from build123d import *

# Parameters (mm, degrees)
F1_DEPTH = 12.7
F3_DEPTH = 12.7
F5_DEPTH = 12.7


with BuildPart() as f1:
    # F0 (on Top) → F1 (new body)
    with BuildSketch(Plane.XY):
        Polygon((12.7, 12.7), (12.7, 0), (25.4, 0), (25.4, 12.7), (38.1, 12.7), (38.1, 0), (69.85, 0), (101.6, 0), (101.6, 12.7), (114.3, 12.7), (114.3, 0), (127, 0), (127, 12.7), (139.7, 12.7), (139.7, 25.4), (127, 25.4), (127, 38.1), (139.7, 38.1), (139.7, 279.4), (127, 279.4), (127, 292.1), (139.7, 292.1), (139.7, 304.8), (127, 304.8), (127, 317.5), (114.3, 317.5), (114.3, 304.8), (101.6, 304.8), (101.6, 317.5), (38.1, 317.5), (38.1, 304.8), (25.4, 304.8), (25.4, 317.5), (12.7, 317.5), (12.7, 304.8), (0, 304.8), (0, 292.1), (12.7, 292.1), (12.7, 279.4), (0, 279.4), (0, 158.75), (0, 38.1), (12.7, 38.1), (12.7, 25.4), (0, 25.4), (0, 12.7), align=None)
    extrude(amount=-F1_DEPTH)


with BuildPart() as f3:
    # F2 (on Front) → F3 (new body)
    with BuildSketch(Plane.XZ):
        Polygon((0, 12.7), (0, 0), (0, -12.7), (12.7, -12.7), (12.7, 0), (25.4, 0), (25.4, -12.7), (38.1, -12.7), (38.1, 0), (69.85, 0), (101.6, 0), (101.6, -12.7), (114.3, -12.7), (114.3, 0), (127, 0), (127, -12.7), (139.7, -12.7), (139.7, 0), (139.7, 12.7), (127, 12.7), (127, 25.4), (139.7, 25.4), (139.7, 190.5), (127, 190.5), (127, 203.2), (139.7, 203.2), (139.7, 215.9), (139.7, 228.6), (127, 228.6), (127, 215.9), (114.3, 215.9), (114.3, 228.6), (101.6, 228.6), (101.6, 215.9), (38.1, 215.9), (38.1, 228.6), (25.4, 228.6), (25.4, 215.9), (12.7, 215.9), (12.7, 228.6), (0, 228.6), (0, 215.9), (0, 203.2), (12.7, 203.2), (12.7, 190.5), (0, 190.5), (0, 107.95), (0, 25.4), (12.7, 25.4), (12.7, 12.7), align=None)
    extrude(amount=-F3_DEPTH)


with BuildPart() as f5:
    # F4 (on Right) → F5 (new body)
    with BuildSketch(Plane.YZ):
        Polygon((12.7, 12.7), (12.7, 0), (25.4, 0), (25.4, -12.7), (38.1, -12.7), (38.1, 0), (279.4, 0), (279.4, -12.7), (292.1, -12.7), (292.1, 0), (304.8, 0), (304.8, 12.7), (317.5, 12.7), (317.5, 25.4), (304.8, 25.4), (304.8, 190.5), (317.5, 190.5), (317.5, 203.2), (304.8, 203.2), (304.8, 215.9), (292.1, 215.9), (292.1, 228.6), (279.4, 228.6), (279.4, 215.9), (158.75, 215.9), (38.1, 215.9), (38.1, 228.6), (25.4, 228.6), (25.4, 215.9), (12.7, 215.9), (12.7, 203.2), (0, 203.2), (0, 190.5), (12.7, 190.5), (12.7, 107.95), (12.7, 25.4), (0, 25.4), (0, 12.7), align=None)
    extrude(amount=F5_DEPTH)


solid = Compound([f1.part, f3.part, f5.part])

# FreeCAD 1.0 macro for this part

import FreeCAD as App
import Part
import Sketcher
from FreeCAD import Vector
Q = App.Units.Quantity

doc = App.newDocument("Part")
body = doc.addObject("PartDesign::Body", "Body")

# Sketch on XY plane
sketch1 = doc.addObject("Sketcher::SketchObject", "Sketch")
body.addObject(sketch1)
sketch1.AttachmentSupport = (doc.XY_Plane, [""])
sketch1.MapMode = "FlatFace"
sketch1.addGeometry(Part.LineSegment(Vector(13, 13, 0), Vector(13, 0, 0)), False)
sketch1.addGeometry(Part.LineSegment(Vector(13, 0, 0), Vector(25, 0, 0)), False)
sketch1.addGeometry(Part.LineSegment(Vector(25, 0, 0), Vector(25, 13, 0)), False)
sketch1.addGeometry(Part.LineSegment(Vector(25, 13, 0), Vector(38, 13, 0)), False)
sketch1.addGeometry(Part.LineSegment(Vector(38, 13, 0), Vector(38, 0, 0)), False)
sketch1.addGeometry(Part.LineSegment(Vector(38, 0, 0), Vector(102, 0, 0)), False)
sketch1.addGeometry(Part.LineSegment(Vector(102, 0, 0), Vector(102, 13, 0)), False)
sketch1.addGeometry(Part.LineSegment(Vector(102, 13, 0), Vector(114, 13, 0)), False)
sketch1.addGeometry(Part.LineSegment(Vector(114, 13, 0), Vector(114, 0, 0)), False)
sketch1.addGeometry(Part.LineSegment(Vector(114, 0, 0), Vector(127, 0, 0)), False)
sketch1.addGeometry(Part.LineSegment(Vector(127, 0, 0), Vector(127, 13, 0)), False)
sketch1.addGeometry(Part.LineSegment(Vector(127, 13, 0), Vector(140, 13, 0)), False)
sketch1.addGeometry(Part.LineSegment(Vector(140, 13, 0), Vector(140, 25, 0)), False)
sketch1.addGeometry(Part.LineSegment(Vector(140, 25, 0), Vector(127, 25, 0)), False)
sketch1.addGeometry(Part.LineSegment(Vector(127, 25, 0), Vector(127, 38, 0)), False)
sketch1.addGeometry(Part.LineSegment(Vector(127, 38, 0), Vector(140, 38, 0)), False)
sketch1.addGeometry(Part.LineSegment(Vector(140, 38, 0), Vector(140, 279, 0)), False)
sketch1.addGeometry(Part.LineSegment(Vector(140, 279, 0), Vector(127, 279, 0)), False)
sketch1.addGeometry(Part.LineSegment(Vector(127, 279, 0), Vector(127, 292, 0)), False)
sketch1.addGeometry(Part.LineSegment(Vector(127, 292, 0), Vector(140, 292, 0)), False)
sketch1.addGeometry(Part.LineSegment(Vector(140, 292, 0), Vector(140, 305, 0)), False)
sketch1.addGeometry(Part.LineSegment(Vector(140, 305, 0), Vector(127, 305, 0)), False)
sketch1.addGeometry(Part.LineSegment(Vector(127, 305, 0), Vector(127, 318, 0)), False)
sketch1.addGeometry(Part.LineSegment(Vector(127, 318, 0), Vector(114, 318, 0)), False)
sketch1.addGeometry(Part.LineSegment(Vector(114, 318, 0), Vector(114, 305, 0)), False)
sketch1.addGeometry(Part.LineSegment(Vector(114, 305, 0), Vector(102, 305, 0)), False)
sketch1.addGeometry(Part.LineSegment(Vector(102, 305, 0), Vector(102, 318, 0)), False)
sketch1.addGeometry(Part.LineSegment(Vector(102, 318, 0), Vector(38, 318, 0)), False)
sketch1.addGeometry(Part.LineSegment(Vector(38, 318, 0), Vector(38, 305, 0)), False)
sketch1.addGeometry(Part.LineSegment(Vector(38, 305, 0), Vector(25, 305, 0)), False)
sketch1.addGeometry(Part.LineSegment(Vector(25, 305, 0), Vector(25, 318, 0)), False)
sketch1.addGeometry(Part.LineSegment(Vector(25, 318, 0), Vector(13, 318, 0)), False)
sketch1.addGeometry(Part.LineSegment(Vector(13, 318, 0), Vector(13, 305, 0)), False)
sketch1.addGeometry(Part.LineSegment(Vector(13, 305, 0), Vector(0, 305, 0)), False)
sketch1.addGeometry(Part.LineSegment(Vector(0, 305, 0), Vector(0, 292, 0)), False)
sketch1.addGeometry(Part.LineSegment(Vector(0, 292, 0), Vector(13, 292, 0)), False)
sketch1.addGeometry(Part.LineSegment(Vector(13, 292, 0), Vector(13, 279, 0)), False)
sketch1.addGeometry(Part.LineSegment(Vector(13, 279, 0), Vector(0, 279, 0)), False)
sketch1.addGeometry(Part.LineSegment(Vector(0, 279, 0), Vector(0, 38, 0)), False)
sketch1.addGeometry(Part.LineSegment(Vector(0, 38, 0), Vector(13, 38, 0)), False)
sketch1.addGeometry(Part.LineSegment(Vector(13, 38, 0), Vector(13, 25, 0)), False)
sketch1.addGeometry(Part.LineSegment(Vector(13, 25, 0), Vector(0, 25, 0)), False)
sketch1.addGeometry(Part.LineSegment(Vector(0, 25, 0), Vector(0, 13, 0)), False)
sketch1.addGeometry(Part.LineSegment(Vector(0, 13, 0), Vector(13, 13, 0)), False)
sketch1.addConstraint(Sketcher.Constraint("Coincident", 0, 2, 1, 1))
sketch1.addConstraint(Sketcher.Constraint("Coincident", 1, 2, 2, 1))
sketch1.addConstraint(Sketcher.Constraint("Coincident", 2, 2, 3, 1))
sketch1.addConstraint(Sketcher.Constraint("Coincident", 3, 2, 4, 1))
sketch1.addConstraint(Sketcher.Constraint("Coincident", 4, 2, 5, 1))
sketch1.addConstraint(Sketcher.Constraint("Coincident", 5, 2, 6, 1))
sketch1.addConstraint(Sketcher.Constraint("Coincident", 6, 2, 7, 1))
sketch1.addConstraint(Sketcher.Constraint("Coincident", 7, 2, 8, 1))
sketch1.addConstraint(Sketcher.Constraint("Coincident", 8, 2, 9, 1))
sketch1.addConstraint(Sketcher.Constraint("Coincident", 9, 2, 10, 1))
sketch1.addConstraint(Sketcher.Constraint("Coincident", 10, 2, 11, 1))
sketch1.addConstraint(Sketcher.Constraint("Coincident", 11, 2, 12, 1))
sketch1.addConstraint(Sketcher.Constraint("Coincident", 12, 2, 13, 1))
sketch1.addConstraint(Sketcher.Constraint("Coincident", 13, 2, 14, 1))
sketch1.addConstraint(Sketcher.Constraint("Coincident", 14, 2, 15, 1))
sketch1.addConstraint(Sketcher.Constraint("Coincident", 15, 2, 16, 1))
sketch1.addConstraint(Sketcher.Constraint("Coincident", 16, 2, 17, 1))
sketch1.addConstraint(Sketcher.Constraint("Coincident", 17, 2, 18, 1))
sketch1.addConstraint(Sketcher.Constraint("Coincident", 18, 2, 19, 1))
sketch1.addConstraint(Sketcher.Constraint("Coincident", 19, 2, 20, 1))
sketch1.addConstraint(Sketcher.Constraint("Coincident", 20, 2, 21, 1))
sketch1.addConstraint(Sketcher.Constraint("Coincident", 21, 2, 22, 1))
sketch1.addConstraint(Sketcher.Constraint("Coincident", 22, 2, 23, 1))
sketch1.addConstraint(Sketcher.Constraint("Coincident", 23, 2, 24, 1))
sketch1.addConstraint(Sketcher.Constraint("Coincident", 24, 2, 25, 1))
sketch1.addConstraint(Sketcher.Constraint("Coincident", 25, 2, 26, 1))
sketch1.addConstraint(Sketcher.Constraint("Coincident", 26, 2, 27, 1))
sketch1.addConstraint(Sketcher.Constraint("Coincident", 27, 2, 28, 1))
sketch1.addConstraint(Sketcher.Constraint("Coincident", 28, 2, 29, 1))
sketch1.addConstraint(Sketcher.Constraint("Coincident", 29, 2, 30, 1))
sketch1.addConstraint(Sketcher.Constraint("Coincident", 30, 2, 31, 1))
sketch1.addConstraint(Sketcher.Constraint("Coincident", 31, 2, 32, 1))
sketch1.addConstraint(Sketcher.Constraint("Coincident", 32, 2, 33, 1))
sketch1.addConstraint(Sketcher.Constraint("Coincident", 33, 2, 34, 1))
sketch1.addConstraint(Sketcher.Constraint("Coincident", 34, 2, 35, 1))
sketch1.addConstraint(Sketcher.Constraint("Coincident", 35, 2, 36, 1))
sketch1.addConstraint(Sketcher.Constraint("Coincident", 36, 2, 37, 1))
sketch1.addConstraint(Sketcher.Constraint("Coincident", 37, 2, 38, 1))
sketch1.addConstraint(Sketcher.Constraint("Coincident", 38, 2, 39, 1))
sketch1.addConstraint(Sketcher.Constraint("Coincident", 39, 2, 40, 1))
sketch1.addConstraint(Sketcher.Constraint("Coincident", 40, 2, 41, 1))
sketch1.addConstraint(Sketcher.Constraint("Coincident", 41, 2, 42, 1))
sketch1.addConstraint(Sketcher.Constraint("Coincident", 42, 2, 43, 1))
sketch1.addConstraint(Sketcher.Constraint("Coincident", 43, 2, 0, 1))
sketch1.addConstraint(Sketcher.Constraint("Vertical", 0))
sketch1.addConstraint(Sketcher.Constraint("Horizontal", 1))
sketch1.addConstraint(Sketcher.Constraint("Vertical", 2))
sketch1.addConstraint(Sketcher.Constraint("Horizontal", 3))
sketch1.addConstraint(Sketcher.Constraint("Vertical", 4))
sketch1.addConstraint(Sketcher.Constraint("Horizontal", 5))
sketch1.addConstraint(Sketcher.Constraint("Vertical", 6))
sketch1.addConstraint(Sketcher.Constraint("Horizontal", 7))
sketch1.addConstraint(Sketcher.Constraint("Vertical", 8))
sketch1.addConstraint(Sketcher.Constraint("Horizontal", 9))
sketch1.addConstraint(Sketcher.Constraint("Vertical", 10))
sketch1.addConstraint(Sketcher.Constraint("Horizontal", 11))
sketch1.addConstraint(Sketcher.Constraint("Vertical", 12))
sketch1.addConstraint(Sketcher.Constraint("Horizontal", 13))
sketch1.addConstraint(Sketcher.Constraint("Vertical", 14))
sketch1.addConstraint(Sketcher.Constraint("Horizontal", 15))
sketch1.addConstraint(Sketcher.Constraint("Vertical", 16))
sketch1.addConstraint(Sketcher.Constraint("Horizontal", 17))
sketch1.addConstraint(Sketcher.Constraint("Vertical", 18))
sketch1.addConstraint(Sketcher.Constraint("Horizontal", 19))
sketch1.addConstraint(Sketcher.Constraint("Vertical", 20))
sketch1.addConstraint(Sketcher.Constraint("Horizontal", 21))
sketch1.addConstraint(Sketcher.Constraint("Vertical", 22))
sketch1.addConstraint(Sketcher.Constraint("Horizontal", 23))
sketch1.addConstraint(Sketcher.Constraint("Vertical", 24))
sketch1.addConstraint(Sketcher.Constraint("Horizontal", 25))
sketch1.addConstraint(Sketcher.Constraint("Vertical", 26))
sketch1.addConstraint(Sketcher.Constraint("Horizontal", 27))
sketch1.addConstraint(Sketcher.Constraint("Vertical", 28))
sketch1.addConstraint(Sketcher.Constraint("Horizontal", 29))
sketch1.addConstraint(Sketcher.Constraint("Vertical", 30))
sketch1.addConstraint(Sketcher.Constraint("Horizontal", 31))
sketch1.addConstraint(Sketcher.Constraint("Vertical", 32))
sketch1.addConstraint(Sketcher.Constraint("Horizontal", 33))
sketch1.addConstraint(Sketcher.Constraint("Vertical", 34))
sketch1.addConstraint(Sketcher.Constraint("Horizontal", 35))
sketch1.addConstraint(Sketcher.Constraint("Vertical", 36))
sketch1.addConstraint(Sketcher.Constraint("Horizontal", 37))
sketch1.addConstraint(Sketcher.Constraint("Vertical", 38))
sketch1.addConstraint(Sketcher.Constraint("Horizontal", 39))
sketch1.addConstraint(Sketcher.Constraint("Vertical", 40))
sketch1.addConstraint(Sketcher.Constraint("Horizontal", 41))
sketch1.addConstraint(Sketcher.Constraint("Vertical", 42))
sketch1.addConstraint(Sketcher.Constraint("Horizontal", 43))
sketch1.addConstraint(Sketcher.Constraint("PointOnObject", 0, 2, -1))
sketch1.addConstraint(Sketcher.Constraint("PointOnObject", 4, 2, -1))
sketch1.addConstraint(Sketcher.Constraint("PointOnObject", 8, 2, -1))
sketch1.addConstraint(Sketcher.Constraint("PointOnObject", 33, 2, -2))
sketch1.addConstraint(Sketcher.Constraint("PointOnObject", 37, 2, -2))
sketch1.addConstraint(Sketcher.Constraint("PointOnObject", 41, 2, -2))
sketch1.addConstraint(Sketcher.Constraint("Horizontal", 3, 2, 6, 2))
sketch1.addConstraint(Sketcher.Constraint("Horizontal", 7, 2, 10, 2))
sketch1.addConstraint(Sketcher.Constraint("Horizontal", 21, 2, 24, 2))
sketch1.addConstraint(Sketcher.Constraint("Horizontal", 23, 2, 26, 2))
sketch1.addConstraint(Sketcher.Constraint("Horizontal", 25, 2, 28, 2))
sketch1.addConstraint(Sketcher.Constraint("Horizontal", 27, 2, 30, 2))
sketch1.addConstraint(Sketcher.Constraint("Horizontal", 29, 2, 32, 2))
sketch1.addConstraint(Sketcher.Constraint("Horizontal", 19, 2, 34, 2))
sketch1.addConstraint(Sketcher.Constraint("Horizontal", 17, 2, 36, 2))
sketch1.addConstraint(Sketcher.Constraint("Horizontal", 15, 2, 38, 2))
sketch1.addConstraint(Sketcher.Constraint("Horizontal", 13, 2, 40, 2))
sketch1.addConstraint(Sketcher.Constraint("Horizontal", 11, 2, 42, 2))
sketch1.addConstraint(Sketcher.Constraint("Vertical", 10, 2, 13, 2))
sketch1.addConstraint(Sketcher.Constraint("Vertical", 12, 2, 15, 2))
sketch1.addConstraint(Sketcher.Constraint("Vertical", 14, 2, 17, 2))
sketch1.addConstraint(Sketcher.Constraint("Vertical", 16, 2, 19, 2))
sketch1.addConstraint(Sketcher.Constraint("Vertical", 18, 2, 21, 2))
sketch1.addConstraint(Sketcher.Constraint("Vertical", 8, 2, 23, 2))
sketch1.addConstraint(Sketcher.Constraint("Vertical", 6, 2, 25, 2))
sketch1.addConstraint(Sketcher.Constraint("Vertical", 4, 2, 27, 2))
sketch1.addConstraint(Sketcher.Constraint("Vertical", 2, 2, 29, 2))
sketch1.addConstraint(Sketcher.Constraint("Vertical", 0, 2, 31, 2))
sketch1.addConstraint(Sketcher.Constraint("Vertical", 32, 2, 35, 2))
sketch1.addConstraint(Sketcher.Constraint("Vertical", 36, 2, 39, 2))
sketch1.addConstraint(Sketcher.Constraint("Equal", 1, 3))
sketch1.addConstraint(Sketcher.Constraint("Equal", 3, 7))
sketch1.addConstraint(Sketcher.Constraint("Equal", 7, 9))
sketch1.addConstraint(Sketcher.Constraint("Equal", 9, 11))
sketch1.addConstraint(Sketcher.Constraint("Equal", 31, 33))
sketch1.addConstraint(Sketcher.Constraint("Equal", 43, 0))
sketch1.addConstraint(Sketcher.Constraint("Equal", 10, 12))
sketch1.addConstraint(Sketcher.Constraint("Equal", 12, 14))
sketch1.addConstraint(Sketcher.Constraint("Equal", 14, 18))
sketch1.addConstraint(Sketcher.Constraint("Equal", 18, 20))
sketch1.addConstraint(Sketcher.Constraint("Equal", 20, 22))
sketch1.addConstraint(Sketcher.Constraint("DistanceX", 1, 1, 1, 2, Q("0.5 in")))
sketch1.addConstraint(Sketcher.Constraint("DistanceX", 5, 1, 5, 2, Q("2.5 in")))
sketch1.addConstraint(Sketcher.Constraint("DistanceY", 16, 1, 16, 2, Q("9.5 in")))
pad1 = doc.addObject("PartDesign::Pad", "Pad")
body.addObject(pad1)
pad1.Profile = sketch1
pad1.Length = Q("0.5 in")
pad1.Reversed = True
body2 = doc.addObject("PartDesign::Body", "Body001")

# Sketch on XZ plane
sketch2 = doc.addObject("Sketcher::SketchObject", "Sketch001")
body2.addObject(sketch2)
sketch2.AttachmentSupport = (doc.getObject("XZ_Plane001"), [""])
sketch2.MapMode = "FlatFace"
sketch2.addGeometry(Part.LineSegment(Vector(0, 13, 0), Vector(0, -13, 0)), False)
sketch2.addGeometry(Part.LineSegment(Vector(0, -13, 0), Vector(13, -13, 0)), False)
sketch2.addGeometry(Part.LineSegment(Vector(13, -13, 0), Vector(13, 0, 0)), False)
sketch2.addGeometry(Part.LineSegment(Vector(13, 0, 0), Vector(25, 0, 0)), False)
sketch2.addGeometry(Part.LineSegment(Vector(25, 0, 0), Vector(25, -13, 0)), False)
sketch2.addGeometry(Part.LineSegment(Vector(25, -13, 0), Vector(38, -13, 0)), False)
sketch2.addGeometry(Part.LineSegment(Vector(38, -13, 0), Vector(38, 0, 0)), False)
sketch2.addGeometry(Part.LineSegment(Vector(38, 0, 0), Vector(102, 0, 0)), False)
sketch2.addGeometry(Part.LineSegment(Vector(102, 0, 0), Vector(102, -13, 0)), False)
sketch2.addGeometry(Part.LineSegment(Vector(102, -13, 0), Vector(114, -13, 0)), False)
sketch2.addGeometry(Part.LineSegment(Vector(114, -13, 0), Vector(114, 0, 0)), False)
sketch2.addGeometry(Part.LineSegment(Vector(114, 0, 0), Vector(127, 0, 0)), False)
sketch2.addGeometry(Part.LineSegment(Vector(127, 0, 0), Vector(127, -13, 0)), False)
sketch2.addGeometry(Part.LineSegment(Vector(127, -13, 0), Vector(140, -13, 0)), False)
sketch2.addGeometry(Part.LineSegment(Vector(140, -13, 0), Vector(140, 13, 0)), False)
sketch2.addGeometry(Part.LineSegment(Vector(140, 13, 0), Vector(127, 13, 0)), False)
sketch2.addGeometry(Part.LineSegment(Vector(127, 13, 0), Vector(127, 25, 0)), False)
sketch2.addGeometry(Part.LineSegment(Vector(127, 25, 0), Vector(140, 25, 0)), False)
sketch2.addGeometry(Part.LineSegment(Vector(140, 25, 0), Vector(140, 190, 0)), False)
sketch2.addGeometry(Part.LineSegment(Vector(140, 190, 0), Vector(127, 190, 0)), False)
sketch2.addGeometry(Part.LineSegment(Vector(127, 190, 0), Vector(127, 203, 0)), False)
sketch2.addGeometry(Part.LineSegment(Vector(127, 203, 0), Vector(140, 203, 0)), False)
sketch2.addGeometry(Part.LineSegment(Vector(140, 203, 0), Vector(140, 229, 0)), False)
sketch2.addGeometry(Part.LineSegment(Vector(140, 229, 0), Vector(127, 229, 0)), False)
sketch2.addGeometry(Part.LineSegment(Vector(127, 229, 0), Vector(127, 216, 0)), False)
sketch2.addGeometry(Part.LineSegment(Vector(127, 216, 0), Vector(114, 216, 0)), False)
sketch2.addGeometry(Part.LineSegment(Vector(114, 216, 0), Vector(114, 229, 0)), False)
sketch2.addGeometry(Part.LineSegment(Vector(114, 229, 0), Vector(102, 229, 0)), False)
sketch2.addGeometry(Part.LineSegment(Vector(102, 229, 0), Vector(102, 216, 0)), False)
sketch2.addGeometry(Part.LineSegment(Vector(102, 216, 0), Vector(38, 216, 0)), False)
sketch2.addGeometry(Part.LineSegment(Vector(38, 216, 0), Vector(38, 229, 0)), False)
sketch2.addGeometry(Part.LineSegment(Vector(38, 229, 0), Vector(25, 229, 0)), False)
sketch2.addGeometry(Part.LineSegment(Vector(25, 229, 0), Vector(25, 216, 0)), False)
sketch2.addGeometry(Part.LineSegment(Vector(25, 216, 0), Vector(13, 216, 0)), False)
sketch2.addGeometry(Part.LineSegment(Vector(13, 216, 0), Vector(13, 229, 0)), False)
sketch2.addGeometry(Part.LineSegment(Vector(13, 229, 0), Vector(0, 229, 0)), False)
sketch2.addGeometry(Part.LineSegment(Vector(0, 229, 0), Vector(0, 203, 0)), False)
sketch2.addGeometry(Part.LineSegment(Vector(0, 203, 0), Vector(13, 203, 0)), False)
sketch2.addGeometry(Part.LineSegment(Vector(13, 203, 0), Vector(13, 190, 0)), False)
sketch2.addGeometry(Part.LineSegment(Vector(13, 190, 0), Vector(0, 190, 0)), False)
sketch2.addGeometry(Part.LineSegment(Vector(0, 190, 0), Vector(0, 25, 0)), False)
sketch2.addGeometry(Part.LineSegment(Vector(0, 25, 0), Vector(13, 25, 0)), False)
sketch2.addGeometry(Part.LineSegment(Vector(13, 25, 0), Vector(13, 13, 0)), False)
sketch2.addGeometry(Part.LineSegment(Vector(13, 13, 0), Vector(0, 13, 0)), False)
sketch2.addConstraint(Sketcher.Constraint("Coincident", 0, 2, 1, 1))
sketch2.addConstraint(Sketcher.Constraint("Coincident", 1, 2, 2, 1))
sketch2.addConstraint(Sketcher.Constraint("Coincident", 2, 2, 3, 1))
sketch2.addConstraint(Sketcher.Constraint("Coincident", 3, 2, 4, 1))
sketch2.addConstraint(Sketcher.Constraint("Coincident", 4, 2, 5, 1))
sketch2.addConstraint(Sketcher.Constraint("Coincident", 5, 2, 6, 1))
sketch2.addConstraint(Sketcher.Constraint("Coincident", 6, 2, 7, 1))
sketch2.addConstraint(Sketcher.Constraint("Coincident", 7, 2, 8, 1))
sketch2.addConstraint(Sketcher.Constraint("Coincident", 8, 2, 9, 1))
sketch2.addConstraint(Sketcher.Constraint("Coincident", 9, 2, 10, 1))
sketch2.addConstraint(Sketcher.Constraint("Coincident", 10, 2, 11, 1))
sketch2.addConstraint(Sketcher.Constraint("Coincident", 11, 2, 12, 1))
sketch2.addConstraint(Sketcher.Constraint("Coincident", 12, 2, 13, 1))
sketch2.addConstraint(Sketcher.Constraint("Coincident", 13, 2, 14, 1))
sketch2.addConstraint(Sketcher.Constraint("Coincident", 14, 2, 15, 1))
sketch2.addConstraint(Sketcher.Constraint("Coincident", 15, 2, 16, 1))
sketch2.addConstraint(Sketcher.Constraint("Coincident", 16, 2, 17, 1))
sketch2.addConstraint(Sketcher.Constraint("Coincident", 17, 2, 18, 1))
sketch2.addConstraint(Sketcher.Constraint("Coincident", 18, 2, 19, 1))
sketch2.addConstraint(Sketcher.Constraint("Coincident", 19, 2, 20, 1))
sketch2.addConstraint(Sketcher.Constraint("Coincident", 20, 2, 21, 1))
sketch2.addConstraint(Sketcher.Constraint("Coincident", 21, 2, 22, 1))
sketch2.addConstraint(Sketcher.Constraint("Coincident", 22, 2, 23, 1))
sketch2.addConstraint(Sketcher.Constraint("Coincident", 23, 2, 24, 1))
sketch2.addConstraint(Sketcher.Constraint("Coincident", 24, 2, 25, 1))
sketch2.addConstraint(Sketcher.Constraint("Coincident", 25, 2, 26, 1))
sketch2.addConstraint(Sketcher.Constraint("Coincident", 26, 2, 27, 1))
sketch2.addConstraint(Sketcher.Constraint("Coincident", 27, 2, 28, 1))
sketch2.addConstraint(Sketcher.Constraint("Coincident", 28, 2, 29, 1))
sketch2.addConstraint(Sketcher.Constraint("Coincident", 29, 2, 30, 1))
sketch2.addConstraint(Sketcher.Constraint("Coincident", 30, 2, 31, 1))
sketch2.addConstraint(Sketcher.Constraint("Coincident", 31, 2, 32, 1))
sketch2.addConstraint(Sketcher.Constraint("Coincident", 32, 2, 33, 1))
sketch2.addConstraint(Sketcher.Constraint("Coincident", 33, 2, 34, 1))
sketch2.addConstraint(Sketcher.Constraint("Coincident", 34, 2, 35, 1))
sketch2.addConstraint(Sketcher.Constraint("Coincident", 35, 2, 36, 1))
sketch2.addConstraint(Sketcher.Constraint("Coincident", 36, 2, 37, 1))
sketch2.addConstraint(Sketcher.Constraint("Coincident", 37, 2, 38, 1))
sketch2.addConstraint(Sketcher.Constraint("Coincident", 38, 2, 39, 1))
sketch2.addConstraint(Sketcher.Constraint("Coincident", 39, 2, 40, 1))
sketch2.addConstraint(Sketcher.Constraint("Coincident", 40, 2, 41, 1))
sketch2.addConstraint(Sketcher.Constraint("Coincident", 41, 2, 42, 1))
sketch2.addConstraint(Sketcher.Constraint("Coincident", 42, 2, 43, 1))
sketch2.addConstraint(Sketcher.Constraint("Coincident", 43, 2, 0, 1))
sketch2.addConstraint(Sketcher.Constraint("Vertical", 0))
sketch2.addConstraint(Sketcher.Constraint("Horizontal", 1))
sketch2.addConstraint(Sketcher.Constraint("Vertical", 2))
sketch2.addConstraint(Sketcher.Constraint("Horizontal", 3))
sketch2.addConstraint(Sketcher.Constraint("Vertical", 4))
sketch2.addConstraint(Sketcher.Constraint("Horizontal", 5))
sketch2.addConstraint(Sketcher.Constraint("Vertical", 6))
sketch2.addConstraint(Sketcher.Constraint("Horizontal", 7))
sketch2.addConstraint(Sketcher.Constraint("Vertical", 8))
sketch2.addConstraint(Sketcher.Constraint("Horizontal", 9))
sketch2.addConstraint(Sketcher.Constraint("Vertical", 10))
sketch2.addConstraint(Sketcher.Constraint("Horizontal", 11))
sketch2.addConstraint(Sketcher.Constraint("Vertical", 12))
sketch2.addConstraint(Sketcher.Constraint("Horizontal", 13))
sketch2.addConstraint(Sketcher.Constraint("Vertical", 14))
sketch2.addConstraint(Sketcher.Constraint("Horizontal", 15))
sketch2.addConstraint(Sketcher.Constraint("Vertical", 16))
sketch2.addConstraint(Sketcher.Constraint("Horizontal", 17))
sketch2.addConstraint(Sketcher.Constraint("Vertical", 18))
sketch2.addConstraint(Sketcher.Constraint("Horizontal", 19))
sketch2.addConstraint(Sketcher.Constraint("Vertical", 20))
sketch2.addConstraint(Sketcher.Constraint("Horizontal", 21))
sketch2.addConstraint(Sketcher.Constraint("Vertical", 22))
sketch2.addConstraint(Sketcher.Constraint("Horizontal", 23))
sketch2.addConstraint(Sketcher.Constraint("Vertical", 24))
sketch2.addConstraint(Sketcher.Constraint("Horizontal", 25))
sketch2.addConstraint(Sketcher.Constraint("Vertical", 26))
sketch2.addConstraint(Sketcher.Constraint("Horizontal", 27))
sketch2.addConstraint(Sketcher.Constraint("Vertical", 28))
sketch2.addConstraint(Sketcher.Constraint("Horizontal", 29))
sketch2.addConstraint(Sketcher.Constraint("Vertical", 30))
sketch2.addConstraint(Sketcher.Constraint("Horizontal", 31))
sketch2.addConstraint(Sketcher.Constraint("Vertical", 32))
sketch2.addConstraint(Sketcher.Constraint("Horizontal", 33))
sketch2.addConstraint(Sketcher.Constraint("Vertical", 34))
sketch2.addConstraint(Sketcher.Constraint("Horizontal", 35))
sketch2.addConstraint(Sketcher.Constraint("Vertical", 36))
sketch2.addConstraint(Sketcher.Constraint("Horizontal", 37))
sketch2.addConstraint(Sketcher.Constraint("Vertical", 38))
sketch2.addConstraint(Sketcher.Constraint("Horizontal", 39))
sketch2.addConstraint(Sketcher.Constraint("Vertical", 40))
sketch2.addConstraint(Sketcher.Constraint("Horizontal", 41))
sketch2.addConstraint(Sketcher.Constraint("Vertical", 42))
sketch2.addConstraint(Sketcher.Constraint("Horizontal", 43))
sketch2.addConstraint(Sketcher.Constraint("Symmetric", 0, 2, 43, 2, -1, 1))
sketch2.addConstraint(Sketcher.Constraint("Symmetric", 12, 2, 15, 2, -1))
sketch2.addConstraint(Sketcher.Constraint("PointOnObject", 2, 2, -1))
sketch2.addConstraint(Sketcher.Constraint("PointOnObject", 6, 2, -1))
sketch2.addConstraint(Sketcher.Constraint("PointOnObject", 10, 2, -1))
sketch2.addConstraint(Sketcher.Constraint("PointOnObject", 35, 2, -2))
sketch2.addConstraint(Sketcher.Constraint("PointOnObject", 39, 2, -2))
sketch2.addConstraint(Sketcher.Constraint("Horizontal", 1, 2, 4, 2))
sketch2.addConstraint(Sketcher.Constraint("Horizontal", 5, 2, 8, 2))
sketch2.addConstraint(Sketcher.Constraint("Horizontal", 9, 2, 12, 2))
sketch2.addConstraint(Sketcher.Constraint("Horizontal", 23, 2, 26, 2))
sketch2.addConstraint(Sketcher.Constraint("Horizontal", 25, 2, 28, 2))
sketch2.addConstraint(Sketcher.Constraint("Horizontal", 27, 2, 30, 2))
sketch2.addConstraint(Sketcher.Constraint("Horizontal", 29, 2, 32, 2))
sketch2.addConstraint(Sketcher.Constraint("Horizontal", 31, 2, 34, 2))
sketch2.addConstraint(Sketcher.Constraint("Horizontal", 21, 2, 36, 2))
sketch2.addConstraint(Sketcher.Constraint("Horizontal", 19, 2, 38, 2))
sketch2.addConstraint(Sketcher.Constraint("Horizontal", 17, 2, 40, 2))
sketch2.addConstraint(Sketcher.Constraint("Vertical", 14, 2, 17, 2))
sketch2.addConstraint(Sketcher.Constraint("Vertical", 16, 2, 19, 2))
sketch2.addConstraint(Sketcher.Constraint("Vertical", 18, 2, 21, 2))
sketch2.addConstraint(Sketcher.Constraint("Vertical", 20, 2, 23, 2))
sketch2.addConstraint(Sketcher.Constraint("Vertical", 10, 2, 25, 2))
sketch2.addConstraint(Sketcher.Constraint("Vertical", 8, 2, 27, 2))
sketch2.addConstraint(Sketcher.Constraint("Vertical", 6, 2, 29, 2))
sketch2.addConstraint(Sketcher.Constraint("Vertical", 4, 2, 31, 2))
sketch2.addConstraint(Sketcher.Constraint("Vertical", 2, 2, 33, 2))
sketch2.addConstraint(Sketcher.Constraint("Vertical", 34, 2, 37, 2))
sketch2.addConstraint(Sketcher.Constraint("Vertical", 38, 2, 41, 2))
sketch2.addConstraint(Sketcher.Constraint("Equal", 1, 3))
sketch2.addConstraint(Sketcher.Constraint("Equal", 3, 5))
sketch2.addConstraint(Sketcher.Constraint("Equal", 5, 9))
sketch2.addConstraint(Sketcher.Constraint("Equal", 9, 11))
sketch2.addConstraint(Sketcher.Constraint("Equal", 11, 13))
sketch2.addConstraint(Sketcher.Constraint("Equal", 43, 2))
sketch2.addConstraint(Sketcher.Constraint("Equal", 12, 16))
sketch2.addConstraint(Sketcher.Constraint("Equal", 16, 20))
sketch2.addConstraint(Sketcher.Constraint("Equal", 14, 22))
sketch2.addConstraint(Sketcher.Constraint("Equal", 20, 24))
sketch2.addConstraint(Sketcher.Constraint("DistanceY", 0, 2, 0, 1, Q("1 in")))
sketch2.addConstraint(Sketcher.Constraint("DistanceX", 7, 1, 7, 2, Q("2.5 in")))
sketch2.addConstraint(Sketcher.Constraint("DistanceY", 18, 1, 18, 2, Q("6.5 in")))
pad2 = doc.addObject("PartDesign::Pad", "Pad001")
body2.addObject(pad2)
pad2.Profile = sketch2
pad2.Length = Q("0.5 in")
pad2.Reversed = True
body3 = doc.addObject("PartDesign::Body", "Body002")

# Sketch on YZ plane
sketch3 = doc.addObject("Sketcher::SketchObject", "Sketch002")
body3.addObject(sketch3)
sketch3.AttachmentSupport = (doc.getObject("YZ_Plane002"), [""])
sketch3.MapMode = "FlatFace"
sketch3.addGeometry(Part.LineSegment(Vector(13, 13, 0), Vector(13, 0, 0)), False)
sketch3.addGeometry(Part.LineSegment(Vector(13, 0, 0), Vector(25, 0, 0)), False)
sketch3.addGeometry(Part.LineSegment(Vector(25, 0, 0), Vector(25, -13, 0)), False)
sketch3.addGeometry(Part.LineSegment(Vector(25, -13, 0), Vector(38, -13, 0)), False)
sketch3.addGeometry(Part.LineSegment(Vector(38, -13, 0), Vector(38, 0, 0)), False)
sketch3.addGeometry(Part.LineSegment(Vector(38, 0, 0), Vector(279, 0, 0)), False)
sketch3.addGeometry(Part.LineSegment(Vector(279, 0, 0), Vector(279, -13, 0)), False)
sketch3.addGeometry(Part.LineSegment(Vector(279, -13, 0), Vector(292, -13, 0)), False)
sketch3.addGeometry(Part.LineSegment(Vector(292, -13, 0), Vector(292, 0, 0)), False)
sketch3.addGeometry(Part.LineSegment(Vector(292, 0, 0), Vector(305, 0, 0)), False)
sketch3.addGeometry(Part.LineSegment(Vector(305, 0, 0), Vector(305, 13, 0)), False)
sketch3.addGeometry(Part.LineSegment(Vector(305, 13, 0), Vector(318, 13, 0)), False)
sketch3.addGeometry(Part.LineSegment(Vector(318, 13, 0), Vector(318, 25, 0)), False)
sketch3.addGeometry(Part.LineSegment(Vector(318, 25, 0), Vector(305, 25, 0)), False)
sketch3.addGeometry(Part.LineSegment(Vector(305, 25, 0), Vector(305, 190, 0)), False)
sketch3.addGeometry(Part.LineSegment(Vector(305, 190, 0), Vector(318, 190, 0)), False)
sketch3.addGeometry(Part.LineSegment(Vector(318, 190, 0), Vector(318, 203, 0)), False)
sketch3.addGeometry(Part.LineSegment(Vector(318, 203, 0), Vector(305, 203, 0)), False)
sketch3.addGeometry(Part.LineSegment(Vector(305, 203, 0), Vector(305, 216, 0)), False)
sketch3.addGeometry(Part.LineSegment(Vector(305, 216, 0), Vector(292, 216, 0)), False)
sketch3.addGeometry(Part.LineSegment(Vector(292, 216, 0), Vector(292, 229, 0)), False)
sketch3.addGeometry(Part.LineSegment(Vector(292, 229, 0), Vector(279, 229, 0)), False)
sketch3.addGeometry(Part.LineSegment(Vector(279, 229, 0), Vector(279, 216, 0)), False)
sketch3.addGeometry(Part.LineSegment(Vector(279, 216, 0), Vector(38, 216, 0)), False)
sketch3.addGeometry(Part.LineSegment(Vector(38, 216, 0), Vector(38, 229, 0)), False)
sketch3.addGeometry(Part.LineSegment(Vector(38, 229, 0), Vector(25, 229, 0)), False)
sketch3.addGeometry(Part.LineSegment(Vector(25, 229, 0), Vector(25, 216, 0)), False)
sketch3.addGeometry(Part.LineSegment(Vector(25, 216, 0), Vector(13, 216, 0)), False)
sketch3.addGeometry(Part.LineSegment(Vector(13, 216, 0), Vector(13, 203, 0)), False)
sketch3.addGeometry(Part.LineSegment(Vector(13, 203, 0), Vector(0, 203, 0)), False)
sketch3.addGeometry(Part.LineSegment(Vector(0, 203, 0), Vector(0, 190, 0)), False)
sketch3.addGeometry(Part.LineSegment(Vector(0, 190, 0), Vector(13, 190, 0)), False)
sketch3.addGeometry(Part.LineSegment(Vector(13, 190, 0), Vector(13, 25, 0)), False)
sketch3.addGeometry(Part.LineSegment(Vector(13, 25, 0), Vector(0, 25, 0)), False)
sketch3.addGeometry(Part.LineSegment(Vector(0, 25, 0), Vector(0, 13, 0)), False)
sketch3.addGeometry(Part.LineSegment(Vector(0, 13, 0), Vector(13, 13, 0)), False)
sketch3.addConstraint(Sketcher.Constraint("Coincident", 0, 2, 1, 1))
sketch3.addConstraint(Sketcher.Constraint("Coincident", 1, 2, 2, 1))
sketch3.addConstraint(Sketcher.Constraint("Coincident", 2, 2, 3, 1))
sketch3.addConstraint(Sketcher.Constraint("Coincident", 3, 2, 4, 1))
sketch3.addConstraint(Sketcher.Constraint("Coincident", 4, 2, 5, 1))
sketch3.addConstraint(Sketcher.Constraint("Coincident", 5, 2, 6, 1))
sketch3.addConstraint(Sketcher.Constraint("Coincident", 6, 2, 7, 1))
sketch3.addConstraint(Sketcher.Constraint("Coincident", 7, 2, 8, 1))
sketch3.addConstraint(Sketcher.Constraint("Coincident", 8, 2, 9, 1))
sketch3.addConstraint(Sketcher.Constraint("Coincident", 9, 2, 10, 1))
sketch3.addConstraint(Sketcher.Constraint("Coincident", 10, 2, 11, 1))
sketch3.addConstraint(Sketcher.Constraint("Coincident", 11, 2, 12, 1))
sketch3.addConstraint(Sketcher.Constraint("Coincident", 12, 2, 13, 1))
sketch3.addConstraint(Sketcher.Constraint("Coincident", 13, 2, 14, 1))
sketch3.addConstraint(Sketcher.Constraint("Coincident", 14, 2, 15, 1))
sketch3.addConstraint(Sketcher.Constraint("Coincident", 15, 2, 16, 1))
sketch3.addConstraint(Sketcher.Constraint("Coincident", 16, 2, 17, 1))
sketch3.addConstraint(Sketcher.Constraint("Coincident", 17, 2, 18, 1))
sketch3.addConstraint(Sketcher.Constraint("Coincident", 18, 2, 19, 1))
sketch3.addConstraint(Sketcher.Constraint("Coincident", 19, 2, 20, 1))
sketch3.addConstraint(Sketcher.Constraint("Coincident", 20, 2, 21, 1))
sketch3.addConstraint(Sketcher.Constraint("Coincident", 21, 2, 22, 1))
sketch3.addConstraint(Sketcher.Constraint("Coincident", 22, 2, 23, 1))
sketch3.addConstraint(Sketcher.Constraint("Coincident", 23, 2, 24, 1))
sketch3.addConstraint(Sketcher.Constraint("Coincident", 24, 2, 25, 1))
sketch3.addConstraint(Sketcher.Constraint("Coincident", 25, 2, 26, 1))
sketch3.addConstraint(Sketcher.Constraint("Coincident", 26, 2, 27, 1))
sketch3.addConstraint(Sketcher.Constraint("Coincident", 27, 2, 28, 1))
sketch3.addConstraint(Sketcher.Constraint("Coincident", 28, 2, 29, 1))
sketch3.addConstraint(Sketcher.Constraint("Coincident", 29, 2, 30, 1))
sketch3.addConstraint(Sketcher.Constraint("Coincident", 30, 2, 31, 1))
sketch3.addConstraint(Sketcher.Constraint("Coincident", 31, 2, 32, 1))
sketch3.addConstraint(Sketcher.Constraint("Coincident", 32, 2, 33, 1))
sketch3.addConstraint(Sketcher.Constraint("Coincident", 33, 2, 34, 1))
sketch3.addConstraint(Sketcher.Constraint("Coincident", 34, 2, 35, 1))
sketch3.addConstraint(Sketcher.Constraint("Coincident", 35, 2, 0, 1))
sketch3.addConstraint(Sketcher.Constraint("Vertical", 0))
sketch3.addConstraint(Sketcher.Constraint("Horizontal", 1))
sketch3.addConstraint(Sketcher.Constraint("Vertical", 2))
sketch3.addConstraint(Sketcher.Constraint("Horizontal", 3))
sketch3.addConstraint(Sketcher.Constraint("Vertical", 4))
sketch3.addConstraint(Sketcher.Constraint("Horizontal", 5))
sketch3.addConstraint(Sketcher.Constraint("Vertical", 6))
sketch3.addConstraint(Sketcher.Constraint("Horizontal", 7))
sketch3.addConstraint(Sketcher.Constraint("Vertical", 8))
sketch3.addConstraint(Sketcher.Constraint("Horizontal", 9))
sketch3.addConstraint(Sketcher.Constraint("Vertical", 10))
sketch3.addConstraint(Sketcher.Constraint("Horizontal", 11))
sketch3.addConstraint(Sketcher.Constraint("Vertical", 12))
sketch3.addConstraint(Sketcher.Constraint("Horizontal", 13))
sketch3.addConstraint(Sketcher.Constraint("Vertical", 14))
sketch3.addConstraint(Sketcher.Constraint("Horizontal", 15))
sketch3.addConstraint(Sketcher.Constraint("Vertical", 16))
sketch3.addConstraint(Sketcher.Constraint("Horizontal", 17))
sketch3.addConstraint(Sketcher.Constraint("Vertical", 18))
sketch3.addConstraint(Sketcher.Constraint("Horizontal", 19))
sketch3.addConstraint(Sketcher.Constraint("Vertical", 20))
sketch3.addConstraint(Sketcher.Constraint("Horizontal", 21))
sketch3.addConstraint(Sketcher.Constraint("Vertical", 22))
sketch3.addConstraint(Sketcher.Constraint("Horizontal", 23))
sketch3.addConstraint(Sketcher.Constraint("Vertical", 24))
sketch3.addConstraint(Sketcher.Constraint("Horizontal", 25))
sketch3.addConstraint(Sketcher.Constraint("Vertical", 26))
sketch3.addConstraint(Sketcher.Constraint("Horizontal", 27))
sketch3.addConstraint(Sketcher.Constraint("Vertical", 28))
sketch3.addConstraint(Sketcher.Constraint("Horizontal", 29))
sketch3.addConstraint(Sketcher.Constraint("Vertical", 30))
sketch3.addConstraint(Sketcher.Constraint("Horizontal", 31))
sketch3.addConstraint(Sketcher.Constraint("Vertical", 32))
sketch3.addConstraint(Sketcher.Constraint("Horizontal", 33))
sketch3.addConstraint(Sketcher.Constraint("Vertical", 34))
sketch3.addConstraint(Sketcher.Constraint("Horizontal", 35))
sketch3.addConstraint(Sketcher.Constraint("PointOnObject", 0, 2, -1))
sketch3.addConstraint(Sketcher.Constraint("PointOnObject", 4, 2, -1))
sketch3.addConstraint(Sketcher.Constraint("PointOnObject", 8, 2, -1))
sketch3.addConstraint(Sketcher.Constraint("PointOnObject", 29, 2, -2))
sketch3.addConstraint(Sketcher.Constraint("PointOnObject", 33, 2, -2))
sketch3.addConstraint(Sketcher.Constraint("Horizontal", 3, 2, 6, 2))
sketch3.addConstraint(Sketcher.Constraint("Horizontal", 19, 2, 22, 2))
sketch3.addConstraint(Sketcher.Constraint("Horizontal", 21, 2, 24, 2))
sketch3.addConstraint(Sketcher.Constraint("Horizontal", 23, 2, 26, 2))
sketch3.addConstraint(Sketcher.Constraint("Horizontal", 17, 2, 28, 2))
sketch3.addConstraint(Sketcher.Constraint("Horizontal", 15, 2, 30, 2))
sketch3.addConstraint(Sketcher.Constraint("Horizontal", 13, 2, 32, 2))
sketch3.addConstraint(Sketcher.Constraint("Horizontal", 11, 2, 34, 2))
sketch3.addConstraint(Sketcher.Constraint("Vertical", 10, 2, 13, 2))
sketch3.addConstraint(Sketcher.Constraint("Vertical", 12, 2, 15, 2))
sketch3.addConstraint(Sketcher.Constraint("Vertical", 14, 2, 17, 2))
sketch3.addConstraint(Sketcher.Constraint("Vertical", 8, 2, 19, 2))
sketch3.addConstraint(Sketcher.Constraint("Vertical", 6, 2, 21, 2))
sketch3.addConstraint(Sketcher.Constraint("Vertical", 4, 2, 23, 2))
sketch3.addConstraint(Sketcher.Constraint("Vertical", 2, 2, 25, 2))
sketch3.addConstraint(Sketcher.Constraint("Vertical", 0, 2, 27, 2))
sketch3.addConstraint(Sketcher.Constraint("Vertical", 28, 2, 31, 2))
sketch3.addConstraint(Sketcher.Constraint("Equal", 1, 3))
sketch3.addConstraint(Sketcher.Constraint("Equal", 3, 7))
sketch3.addConstraint(Sketcher.Constraint("Equal", 7, 9))
sketch3.addConstraint(Sketcher.Constraint("Equal", 9, 11))
sketch3.addConstraint(Sketcher.Constraint("Equal", 27, 29))
sketch3.addConstraint(Sketcher.Constraint("Equal", 35, 0))
sketch3.addConstraint(Sketcher.Constraint("Equal", 0, 2))
sketch3.addConstraint(Sketcher.Constraint("Equal", 10, 12))
sketch3.addConstraint(Sketcher.Constraint("Equal", 12, 16))
sketch3.addConstraint(Sketcher.Constraint("Equal", 16, 18))
sketch3.addConstraint(Sketcher.Constraint("Equal", 18, 20))
sketch3.addConstraint(Sketcher.Constraint("DistanceX", 1, 1, 1, 2, Q("0.5 in")))
sketch3.addConstraint(Sketcher.Constraint("DistanceX", 5, 1, 5, 2, Q("9.5 in")))
sketch3.addConstraint(Sketcher.Constraint("DistanceY", 14, 1, 14, 2, Q("6.5 in")))
pad3 = doc.addObject("PartDesign::Pad", "Pad002")
body3.addObject(pad3)
pad3.Profile = sketch3
pad3.Length = Q("0.5 in")

doc.recompute()
